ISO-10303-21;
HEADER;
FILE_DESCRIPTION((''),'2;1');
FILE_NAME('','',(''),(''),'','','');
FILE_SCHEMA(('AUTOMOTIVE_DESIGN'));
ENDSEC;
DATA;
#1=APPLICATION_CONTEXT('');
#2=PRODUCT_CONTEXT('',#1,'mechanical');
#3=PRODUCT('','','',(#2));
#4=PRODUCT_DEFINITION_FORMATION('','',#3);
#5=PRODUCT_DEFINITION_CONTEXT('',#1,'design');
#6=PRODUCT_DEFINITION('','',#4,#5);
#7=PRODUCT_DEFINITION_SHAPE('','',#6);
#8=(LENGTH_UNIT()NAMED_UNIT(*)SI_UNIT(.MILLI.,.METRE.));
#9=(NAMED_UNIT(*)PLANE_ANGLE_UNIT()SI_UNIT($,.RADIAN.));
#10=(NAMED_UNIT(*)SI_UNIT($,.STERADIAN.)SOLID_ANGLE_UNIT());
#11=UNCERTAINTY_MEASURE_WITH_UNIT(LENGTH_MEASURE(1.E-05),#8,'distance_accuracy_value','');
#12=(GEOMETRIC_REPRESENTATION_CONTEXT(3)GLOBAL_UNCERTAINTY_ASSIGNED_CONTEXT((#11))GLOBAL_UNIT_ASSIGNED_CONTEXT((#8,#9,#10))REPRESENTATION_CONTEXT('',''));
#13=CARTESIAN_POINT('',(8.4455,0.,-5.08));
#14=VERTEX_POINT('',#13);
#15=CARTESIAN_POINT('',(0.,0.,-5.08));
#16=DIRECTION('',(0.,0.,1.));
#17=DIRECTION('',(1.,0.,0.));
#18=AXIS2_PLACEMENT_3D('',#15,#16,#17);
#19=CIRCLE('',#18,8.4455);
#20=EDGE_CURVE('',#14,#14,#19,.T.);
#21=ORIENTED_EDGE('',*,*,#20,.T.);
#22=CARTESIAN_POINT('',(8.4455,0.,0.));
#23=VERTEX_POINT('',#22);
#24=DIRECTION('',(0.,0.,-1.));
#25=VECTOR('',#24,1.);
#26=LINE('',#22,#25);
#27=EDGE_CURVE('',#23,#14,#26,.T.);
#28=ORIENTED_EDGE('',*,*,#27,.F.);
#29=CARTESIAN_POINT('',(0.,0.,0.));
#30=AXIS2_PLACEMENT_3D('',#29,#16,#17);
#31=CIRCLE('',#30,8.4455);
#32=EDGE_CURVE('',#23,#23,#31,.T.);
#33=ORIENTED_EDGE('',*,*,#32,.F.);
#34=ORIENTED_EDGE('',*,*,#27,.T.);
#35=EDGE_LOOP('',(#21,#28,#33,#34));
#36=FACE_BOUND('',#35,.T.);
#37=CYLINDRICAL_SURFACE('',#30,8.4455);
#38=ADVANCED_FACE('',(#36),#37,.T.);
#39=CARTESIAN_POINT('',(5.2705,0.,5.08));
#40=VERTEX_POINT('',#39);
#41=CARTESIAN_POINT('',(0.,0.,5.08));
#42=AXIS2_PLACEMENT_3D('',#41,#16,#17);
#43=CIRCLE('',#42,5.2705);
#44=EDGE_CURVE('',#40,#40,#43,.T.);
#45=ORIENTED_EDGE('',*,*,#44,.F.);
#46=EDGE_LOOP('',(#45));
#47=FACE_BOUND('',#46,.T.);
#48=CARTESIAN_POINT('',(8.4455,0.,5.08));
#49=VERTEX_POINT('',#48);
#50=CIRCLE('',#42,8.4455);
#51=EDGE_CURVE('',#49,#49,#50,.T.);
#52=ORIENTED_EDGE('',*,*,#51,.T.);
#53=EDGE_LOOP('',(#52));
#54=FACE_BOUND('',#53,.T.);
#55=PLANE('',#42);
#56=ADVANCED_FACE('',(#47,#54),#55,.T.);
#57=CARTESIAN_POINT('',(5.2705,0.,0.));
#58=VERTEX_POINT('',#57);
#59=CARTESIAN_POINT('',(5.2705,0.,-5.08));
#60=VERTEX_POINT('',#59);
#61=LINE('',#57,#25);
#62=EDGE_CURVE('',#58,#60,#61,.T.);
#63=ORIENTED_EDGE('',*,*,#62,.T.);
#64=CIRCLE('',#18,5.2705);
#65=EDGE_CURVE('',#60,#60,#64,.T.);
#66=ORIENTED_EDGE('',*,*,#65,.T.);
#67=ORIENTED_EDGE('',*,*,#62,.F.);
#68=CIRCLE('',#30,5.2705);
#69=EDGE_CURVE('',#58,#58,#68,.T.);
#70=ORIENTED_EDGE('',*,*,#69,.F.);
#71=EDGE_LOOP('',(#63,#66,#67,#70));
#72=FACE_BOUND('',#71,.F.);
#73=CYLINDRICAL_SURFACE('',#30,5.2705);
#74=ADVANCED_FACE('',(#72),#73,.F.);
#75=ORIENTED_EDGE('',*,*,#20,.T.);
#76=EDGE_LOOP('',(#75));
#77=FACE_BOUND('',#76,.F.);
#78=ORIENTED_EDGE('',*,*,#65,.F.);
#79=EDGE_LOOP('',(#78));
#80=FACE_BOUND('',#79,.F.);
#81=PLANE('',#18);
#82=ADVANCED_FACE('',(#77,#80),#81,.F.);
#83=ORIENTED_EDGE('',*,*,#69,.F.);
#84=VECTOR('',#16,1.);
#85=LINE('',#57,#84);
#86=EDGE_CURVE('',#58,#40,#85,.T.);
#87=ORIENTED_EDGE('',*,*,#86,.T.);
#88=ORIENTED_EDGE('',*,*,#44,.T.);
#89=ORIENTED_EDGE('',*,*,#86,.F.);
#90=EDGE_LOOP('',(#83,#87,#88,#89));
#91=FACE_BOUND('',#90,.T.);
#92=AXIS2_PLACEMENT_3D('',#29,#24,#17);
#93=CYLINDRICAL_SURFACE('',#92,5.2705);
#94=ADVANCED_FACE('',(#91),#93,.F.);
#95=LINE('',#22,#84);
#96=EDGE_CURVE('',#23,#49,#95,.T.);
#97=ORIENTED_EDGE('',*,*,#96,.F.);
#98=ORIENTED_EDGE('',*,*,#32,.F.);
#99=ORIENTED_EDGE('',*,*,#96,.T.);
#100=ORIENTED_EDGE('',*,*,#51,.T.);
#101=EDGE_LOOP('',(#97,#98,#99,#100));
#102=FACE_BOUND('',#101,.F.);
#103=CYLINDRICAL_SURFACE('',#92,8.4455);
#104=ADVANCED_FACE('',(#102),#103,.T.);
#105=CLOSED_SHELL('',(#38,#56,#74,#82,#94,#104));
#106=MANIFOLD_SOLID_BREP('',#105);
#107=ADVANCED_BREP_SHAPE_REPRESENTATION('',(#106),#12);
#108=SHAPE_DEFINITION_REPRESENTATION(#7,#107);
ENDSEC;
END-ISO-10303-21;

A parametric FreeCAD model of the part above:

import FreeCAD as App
import Part
import Sketcher

V = App.Vector
Q = App.Units.Quantity

doc = App.newDocument("Part")
body = doc.addObject("PartDesign::Body", "Body")

sketch1 = doc.addObject("Sketcher::SketchObject", "Sketch")
body.addObject(sketch1)
sketch1.AttachmentSupport = (doc.XY_Plane, [""])
sketch1.MapMode = "FlatFace"
sketch1.addGeometry([
    Part.Circle(V(0, 0, 0), V(0, 0, 1), 8),
    Part.Circle(V(0, 0, 0), V(0, 0, 1), 5),
], False)
sketch1.addConstraint([
    Sketcher.Constraint("Coincident", 0, 3, -1, 1),
    Sketcher.Constraint("Coincident", 1, 3, -1, 1),
    Sketcher.Constraint("Diameter", 1, Q("0.415 in")),
    Sketcher.Constraint("Diameter", 0, Q("0.665 in")),
])
pad1 = doc.addObject("PartDesign::Pad", "Pad")
body.addObject(pad1)
pad1.Profile = sketch1
pad1.Length = Q("0.4 in")
pad1.Midplane = True

doc.recompute()
